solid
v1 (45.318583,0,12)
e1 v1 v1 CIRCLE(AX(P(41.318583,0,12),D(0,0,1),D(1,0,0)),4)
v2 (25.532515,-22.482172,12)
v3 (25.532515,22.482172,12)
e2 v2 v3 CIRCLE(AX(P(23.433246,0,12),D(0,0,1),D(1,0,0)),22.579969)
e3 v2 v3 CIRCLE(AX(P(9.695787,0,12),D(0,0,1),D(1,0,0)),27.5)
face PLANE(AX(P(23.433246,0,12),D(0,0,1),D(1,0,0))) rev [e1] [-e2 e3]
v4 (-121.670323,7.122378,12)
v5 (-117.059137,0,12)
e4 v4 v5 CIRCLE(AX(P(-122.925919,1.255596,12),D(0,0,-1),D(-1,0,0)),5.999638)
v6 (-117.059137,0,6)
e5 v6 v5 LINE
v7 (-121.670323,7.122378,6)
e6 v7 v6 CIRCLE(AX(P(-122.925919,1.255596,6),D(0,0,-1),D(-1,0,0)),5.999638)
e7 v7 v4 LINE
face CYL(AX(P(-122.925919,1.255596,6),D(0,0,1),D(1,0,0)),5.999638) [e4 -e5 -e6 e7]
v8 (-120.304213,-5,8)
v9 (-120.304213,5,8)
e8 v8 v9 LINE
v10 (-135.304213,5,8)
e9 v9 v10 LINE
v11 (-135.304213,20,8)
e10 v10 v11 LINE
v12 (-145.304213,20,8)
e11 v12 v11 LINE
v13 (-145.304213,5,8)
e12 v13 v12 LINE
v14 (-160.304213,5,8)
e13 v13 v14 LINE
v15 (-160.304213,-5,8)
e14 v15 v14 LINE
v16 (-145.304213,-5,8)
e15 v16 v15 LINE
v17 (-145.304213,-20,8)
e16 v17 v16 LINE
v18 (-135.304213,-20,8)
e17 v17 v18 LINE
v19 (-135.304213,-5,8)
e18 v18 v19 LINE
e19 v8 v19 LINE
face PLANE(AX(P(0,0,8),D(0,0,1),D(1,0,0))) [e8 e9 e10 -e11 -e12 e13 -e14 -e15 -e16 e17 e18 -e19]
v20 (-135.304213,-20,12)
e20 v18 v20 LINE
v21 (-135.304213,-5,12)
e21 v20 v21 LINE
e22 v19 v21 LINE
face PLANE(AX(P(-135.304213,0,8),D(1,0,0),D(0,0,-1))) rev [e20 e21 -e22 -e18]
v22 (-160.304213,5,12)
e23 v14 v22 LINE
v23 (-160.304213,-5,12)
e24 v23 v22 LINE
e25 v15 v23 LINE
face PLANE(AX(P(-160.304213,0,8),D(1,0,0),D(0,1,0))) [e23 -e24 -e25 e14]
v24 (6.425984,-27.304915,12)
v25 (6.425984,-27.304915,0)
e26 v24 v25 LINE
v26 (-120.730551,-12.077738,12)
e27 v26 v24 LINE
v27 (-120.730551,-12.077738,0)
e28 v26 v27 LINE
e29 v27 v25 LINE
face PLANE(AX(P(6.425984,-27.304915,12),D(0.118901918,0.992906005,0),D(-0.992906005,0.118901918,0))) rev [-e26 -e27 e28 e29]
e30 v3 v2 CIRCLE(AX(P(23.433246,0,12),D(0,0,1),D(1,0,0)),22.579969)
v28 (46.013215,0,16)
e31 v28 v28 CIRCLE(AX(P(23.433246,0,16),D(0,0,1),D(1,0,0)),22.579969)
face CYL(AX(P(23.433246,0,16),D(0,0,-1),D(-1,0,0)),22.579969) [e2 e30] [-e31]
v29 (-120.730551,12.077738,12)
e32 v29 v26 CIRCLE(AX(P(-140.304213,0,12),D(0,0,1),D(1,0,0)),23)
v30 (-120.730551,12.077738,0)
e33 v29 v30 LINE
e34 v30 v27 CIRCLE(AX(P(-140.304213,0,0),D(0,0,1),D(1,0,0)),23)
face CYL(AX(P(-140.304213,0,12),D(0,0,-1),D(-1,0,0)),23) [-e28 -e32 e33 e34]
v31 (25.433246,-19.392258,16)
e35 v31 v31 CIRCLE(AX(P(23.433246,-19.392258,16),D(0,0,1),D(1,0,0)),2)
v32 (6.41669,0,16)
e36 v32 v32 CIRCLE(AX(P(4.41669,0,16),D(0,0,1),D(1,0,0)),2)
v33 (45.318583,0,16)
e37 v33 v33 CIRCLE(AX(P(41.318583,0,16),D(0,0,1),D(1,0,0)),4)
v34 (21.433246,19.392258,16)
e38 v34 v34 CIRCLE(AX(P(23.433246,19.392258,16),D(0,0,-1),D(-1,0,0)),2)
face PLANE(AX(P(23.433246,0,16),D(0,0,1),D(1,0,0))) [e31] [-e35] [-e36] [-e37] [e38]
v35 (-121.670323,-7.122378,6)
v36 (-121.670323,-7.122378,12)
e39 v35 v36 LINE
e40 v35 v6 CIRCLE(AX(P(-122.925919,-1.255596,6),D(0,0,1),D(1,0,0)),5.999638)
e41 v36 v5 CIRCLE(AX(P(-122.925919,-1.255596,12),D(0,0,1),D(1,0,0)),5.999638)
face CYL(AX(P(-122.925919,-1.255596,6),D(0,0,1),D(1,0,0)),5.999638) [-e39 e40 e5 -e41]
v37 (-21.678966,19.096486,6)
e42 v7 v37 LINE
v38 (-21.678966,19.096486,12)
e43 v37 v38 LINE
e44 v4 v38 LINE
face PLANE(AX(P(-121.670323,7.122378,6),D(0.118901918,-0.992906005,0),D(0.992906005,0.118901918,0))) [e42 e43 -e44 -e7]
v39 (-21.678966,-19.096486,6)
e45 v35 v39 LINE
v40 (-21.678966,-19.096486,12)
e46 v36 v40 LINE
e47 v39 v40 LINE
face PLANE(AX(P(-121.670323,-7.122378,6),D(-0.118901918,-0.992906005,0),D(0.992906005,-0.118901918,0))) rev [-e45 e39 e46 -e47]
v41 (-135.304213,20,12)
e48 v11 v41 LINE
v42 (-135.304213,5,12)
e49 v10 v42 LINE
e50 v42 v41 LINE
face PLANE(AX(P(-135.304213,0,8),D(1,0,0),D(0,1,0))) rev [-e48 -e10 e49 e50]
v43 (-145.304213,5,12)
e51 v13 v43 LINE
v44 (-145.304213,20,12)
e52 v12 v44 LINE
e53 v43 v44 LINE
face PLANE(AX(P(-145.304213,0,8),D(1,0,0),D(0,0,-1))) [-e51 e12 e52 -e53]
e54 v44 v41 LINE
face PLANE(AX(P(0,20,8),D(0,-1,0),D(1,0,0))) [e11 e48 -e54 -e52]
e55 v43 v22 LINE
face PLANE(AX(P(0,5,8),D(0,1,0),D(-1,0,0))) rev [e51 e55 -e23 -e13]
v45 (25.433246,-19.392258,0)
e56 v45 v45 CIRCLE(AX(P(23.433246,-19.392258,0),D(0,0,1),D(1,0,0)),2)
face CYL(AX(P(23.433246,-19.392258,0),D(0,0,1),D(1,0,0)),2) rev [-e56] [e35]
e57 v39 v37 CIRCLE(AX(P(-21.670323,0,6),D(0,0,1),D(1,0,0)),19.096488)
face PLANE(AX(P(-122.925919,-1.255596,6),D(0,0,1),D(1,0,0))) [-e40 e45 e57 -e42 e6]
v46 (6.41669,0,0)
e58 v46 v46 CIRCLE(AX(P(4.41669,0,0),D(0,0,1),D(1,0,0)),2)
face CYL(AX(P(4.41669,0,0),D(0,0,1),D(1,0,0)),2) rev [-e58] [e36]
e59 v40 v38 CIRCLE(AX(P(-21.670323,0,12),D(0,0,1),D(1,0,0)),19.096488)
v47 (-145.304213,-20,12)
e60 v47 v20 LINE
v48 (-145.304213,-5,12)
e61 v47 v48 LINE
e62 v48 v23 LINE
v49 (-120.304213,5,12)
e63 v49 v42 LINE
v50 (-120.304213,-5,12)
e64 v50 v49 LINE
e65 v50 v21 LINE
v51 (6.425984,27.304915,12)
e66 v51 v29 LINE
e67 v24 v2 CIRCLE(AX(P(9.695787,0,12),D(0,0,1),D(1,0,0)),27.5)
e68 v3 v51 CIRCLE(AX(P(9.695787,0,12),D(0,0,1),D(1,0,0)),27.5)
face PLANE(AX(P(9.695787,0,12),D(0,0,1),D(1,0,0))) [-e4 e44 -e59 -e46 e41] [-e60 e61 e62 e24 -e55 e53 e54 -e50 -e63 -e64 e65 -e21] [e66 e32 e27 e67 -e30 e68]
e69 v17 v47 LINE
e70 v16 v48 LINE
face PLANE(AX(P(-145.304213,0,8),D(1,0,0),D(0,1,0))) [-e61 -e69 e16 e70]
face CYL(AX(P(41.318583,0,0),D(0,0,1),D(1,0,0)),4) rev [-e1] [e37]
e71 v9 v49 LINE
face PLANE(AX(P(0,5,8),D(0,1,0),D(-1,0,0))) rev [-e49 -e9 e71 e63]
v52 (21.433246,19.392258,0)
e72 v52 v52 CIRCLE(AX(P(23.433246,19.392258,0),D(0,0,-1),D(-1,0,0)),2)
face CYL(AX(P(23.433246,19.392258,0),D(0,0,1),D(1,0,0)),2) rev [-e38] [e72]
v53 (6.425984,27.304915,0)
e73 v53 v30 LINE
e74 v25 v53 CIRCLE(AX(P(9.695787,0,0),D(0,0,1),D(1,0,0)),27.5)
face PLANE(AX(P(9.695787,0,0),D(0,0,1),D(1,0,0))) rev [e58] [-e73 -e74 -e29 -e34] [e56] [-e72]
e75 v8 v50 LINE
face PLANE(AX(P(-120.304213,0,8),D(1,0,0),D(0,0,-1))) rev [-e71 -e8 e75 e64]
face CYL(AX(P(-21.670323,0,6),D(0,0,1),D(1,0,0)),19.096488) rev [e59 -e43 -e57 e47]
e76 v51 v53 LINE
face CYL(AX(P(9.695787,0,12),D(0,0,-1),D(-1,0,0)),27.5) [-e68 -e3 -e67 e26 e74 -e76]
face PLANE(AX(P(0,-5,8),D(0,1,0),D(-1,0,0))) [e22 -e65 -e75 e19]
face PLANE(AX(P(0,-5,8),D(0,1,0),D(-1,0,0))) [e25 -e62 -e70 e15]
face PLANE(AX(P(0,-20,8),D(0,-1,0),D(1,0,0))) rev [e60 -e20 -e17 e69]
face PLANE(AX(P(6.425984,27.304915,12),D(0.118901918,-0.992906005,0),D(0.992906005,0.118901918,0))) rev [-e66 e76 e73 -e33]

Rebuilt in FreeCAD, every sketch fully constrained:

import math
import FreeCAD as App
import Part
import Sketcher

V = App.Vector

doc = App.newDocument("Part")
body = doc.addObject("PartDesign::Body", "Body")

# Sketch on XY plane
sketch1 = doc.addObject("Sketcher::SketchObject", "Sketch")
body.addObject(sketch1)
sketch1.AttachmentSupport = (doc.XY_Plane, [""])
sketch1.MapMode = "FlatFace"
sketch1.addGeometry([
    Part.LineSegment(V(6, 27, 0), V(-121, 12, 0)),
    Part.ArcOfCircle(Part.Circle(V(-140, 0, 0), V(0, 0, 1), 23), math.radians(32), math.radians(328)),
    Part.LineSegment(V(-121, -12, 0), V(6, -27, 0)),
    Part.ArcOfCircle(Part.Circle(V(10, 0, 0), V(0, 0, 1), 28), math.radians(-97), math.radians(97)),
], False)
sketch1.addConstraint([
    Sketcher.Constraint("Coincident", 0, 2, 1, 1),
    Sketcher.Constraint("Coincident", 1, 2, 2, 1),
    Sketcher.Constraint("Tangent", 2, 2, 3, 1),
    Sketcher.Constraint("Tangent", 3, 2, 0, 1),
    Sketcher.Constraint("Symmetric", 0, 2, 1, 2, -1),
    Sketcher.Constraint("PointOnObject", 3, 3, -1),
    Sketcher.Constraint("Radius", 1, 23.0),
    Sketcher.Constraint("Radius", 3, 27.5),
    Sketcher.Constraint("DistanceX", 1, 3, 3, 3, 150.0),
    Sketcher.Constraint("DistanceX", 0, 2, -1, 1, 120.730551),
    Sketcher.Constraint("DistanceY", 2, 2, 3, 2, 54.60983),
])
pad1 = doc.addObject("PartDesign::Pad", "Pad")
body.addObject(pad1)
pad1.Profile = sketch1
pad1.Length = 12

# Sketch on XY plane
sketch2 = doc.addObject("Sketcher::SketchObject", "Sketch001")
body.addObject(sketch2)
sketch2.AttachmentSupport = (doc.XY_Plane, [""])
sketch2.MapMode = "FlatFace"
sketch2.AttachmentOffset = App.Placement(V(0, 0, 12), App.Rotation())
sketch2.addGeometry([
    Part.LineSegment(V(-22, 19, 0), V(-122, 7, 0)),  # 0
    Part.ArcOfCircle(Part.Circle(V(-123, 1, 0), V(0, 0, 1), 6), math.radians(-12), math.radians(78)),  # 1
    Part.ArcOfCircle(Part.Circle(V(-123, -1, 0), V(0, 0, 1), 6), math.radians(-78), math.radians(12)),  # 2
    Part.LineSegment(V(-122, -7, 0), V(-22, -19, 0)),  # 3
    Part.ArcOfCircle(Part.Circle(V(-22, 0, 0), V(0, 0, 1), 19), math.radians(-90), math.radians(90)),  # 4
], False)
sketch2.addConstraint([
    Sketcher.Constraint("Coincident", 0, 2, 1, 2),
    Sketcher.Constraint("Coincident", 1, 1, 2, 2),
    Sketcher.Constraint("Coincident", 2, 1, 3, 1),
    Sketcher.Constraint("Coincident", 3, 2, 4, 1),
    Sketcher.Constraint("Coincident", 4, 2, 0, 1),
    Sketcher.Constraint("Equal", 1, 2),
    Sketcher.Constraint("Symmetric", 1, 3, 2, 3, -1),
    Sketcher.Constraint("Symmetric", 3, 2, 4, 2, -1),
    Sketcher.Constraint("Vertical", 0, 2, 2, 1),
    Sketcher.Constraint("DistanceX", 0, 2, 4, 3, 100.0),
    Sketcher.Constraint("Radius", 4, 19.096488),
    Sketcher.Constraint("Radius", 1, 5.999638),
    Sketcher.Constraint("DistanceX", 1, 3, -1, 1, 122.925919),
    Sketcher.Constraint("DistanceY", 1, 3, 0, 2, 5.866782),
    Sketcher.Constraint("DistanceX", 2, 3, 1, 1, 5.866782),
    Sketcher.Constraint("DistanceX", 1, 1, 3, 2, 95.380171),
])
pocket1 = doc.addObject("PartDesign::Pocket", "Pocket")
body.addObject(pocket1)
pocket1.Profile = sketch2
pocket1.Length = 6

# Sketch on XY plane
sketch3 = doc.addObject("Sketcher::SketchObject", "Sketch002")
body.addObject(sketch3)
sketch3.AttachmentSupport = (doc.XY_Plane, [""])
sketch3.MapMode = "FlatFace"
sketch3.AttachmentOffset = App.Placement(V(0, 0, 12), App.Rotation())
sketch3.addGeometry(Part.Circle(V(23, 0, 0), V(0, 0, 1), 23), False)
sketch3.addConstraint([
    Sketcher.Constraint("PointOnObject", 0, 3, -1),
    Sketcher.Constraint("Diameter", 0, 45.159937),
    Sketcher.Constraint("DistanceX", -1, 1, 0, 3, 23.433246),
])
pad2 = doc.addObject("PartDesign::Pad", "Pad001")
body.addObject(pad2)
pad2.Profile = sketch3
pad2.Length = 4

# Sketch on XY plane
sketch4 = doc.addObject("Sketcher::SketchObject", "Sketch003")
body.addObject(sketch4)
sketch4.AttachmentSupport = (doc.XY_Plane, [""])
sketch4.MapMode = "FlatFace"
sketch4.AttachmentOffset = App.Placement(V(0, 0, 16), App.Rotation())
sketch4.addGeometry(Part.Circle(V(4.4, 0, 0), V(0, 0, 1), 2), False)
sketch4.addConstraint([
    Sketcher.Constraint("PointOnObject", 0, 3, -1),
    Sketcher.Constraint("Diameter", 0, 4.0),
    Sketcher.Constraint("DistanceX", -1, 1, 0, 3, 4.41669),
])
pocket2 = doc.addObject("PartDesign::Pocket", "Pocket001")
body.addObject(pocket2)
pocket2.Profile = sketch4
pocket2.Length = 16

# Sketch on XY plane
sketch5 = doc.addObject("Sketcher::SketchObject", "Sketch004")
body.addObject(sketch5)
sketch5.AttachmentSupport = (doc.XY_Plane, [""])
sketch5.MapMode = "FlatFace"
sketch5.AttachmentOffset = App.Placement(V(0, 0, 16), App.Rotation())
sketch5.addGeometry([
    Part.Circle(V(23.4, -19.4, 0), V(0, 0, 1), 2),
    Part.Circle(V(42.4, 0, 0), V(0, 0, 1), 2),
    Part.Circle(V(23.4, 19.4, 0), V(0, 0, 1), 2),
], False)
sketch5.addConstraint([
    Sketcher.Constraint("Equal", 0, 1),
    Sketcher.Constraint("Equal", 1, 2),
    Sketcher.Constraint("Symmetric", 0, 3, 2, 3, -1),
    Sketcher.Constraint("PointOnObject", 1, 3, -1),
    Sketcher.Constraint("Diameter", 0, 4.0),
    Sketcher.Constraint("DistanceX", -1, 1, 0, 3, 23.433246),
    Sketcher.Constraint("DistanceY", 0, 3, -1, 1, 19.392258),
    Sketcher.Constraint("DistanceX", -1, 1, 1, 3, 42.449803),
])
pocket3 = doc.addObject("PartDesign::Pocket", "Pocket002")
body.addObject(pocket3)
pocket3.Profile = sketch5
pocket3.Length = 16

# Sketch on XY plane
sketch6 = doc.addObject("Sketcher::SketchObject", "Sketch005")
body.addObject(sketch6)
sketch6.AttachmentSupport = (doc.XY_Plane, [""])
sketch6.MapMode = "FlatFace"
sketch6.AttachmentOffset = App.Placement(V(0, 0, 16), App.Rotation())
sketch6.addGeometry(Part.Circle(V(41.3, 0, 0), V(0, 0, 1), 4), False)
sketch6.addConstraint([
    Sketcher.Constraint("PointOnObject", 0, 3, -1),
    Sketcher.Constraint("Diameter", 0, 8.0),
    Sketcher.Constraint("DistanceX", -1, 1, 0, 3, 41.318583),
])
pocket4 = doc.addObject("PartDesign::Pocket", "Pocket003")
body.addObject(pocket4)
pocket4.Profile = sketch6
pocket4.Type = "ThroughAll"
pocket4.Midplane = True

# Sketch on XY plane
sketch7 = doc.addObject("Sketcher::SketchObject", "Sketch006")
body.addObject(sketch7)
sketch7.AttachmentSupport = (doc.XY_Plane, [""])
sketch7.MapMode = "FlatFace"
sketch7.AttachmentOffset = App.Placement(V(0, 0, 12), App.Rotation())
sketch7.addGeometry([
    Part.LineSegment(V(-120, 5, 0), V(-135, 5, 0)),  # 0
    Part.LineSegment(V(-135, 5, 0), V(-135, 20, 0)),  # 1
    Part.LineSegment(V(-135, 20, 0), V(-145, 20, 0)),  # 2
    Part.LineSegment(V(-145, 20, 0), V(-145, 5, 0)),  # 3
    Part.LineSegment(V(-145, 5, 0), V(-160, 5, 0)),  # 4
    Part.LineSegment(V(-160, 5, 0), V(-160, -5, 0)),  # 5
    Part.LineSegment(V(-160, -5, 0), V(-145, -5, 0)),  # 6
    Part.LineSegment(V(-145, -5, 0), V(-145, -20, 0)),  # 7
    Part.LineSegment(V(-145, -20, 0), V(-135, -20, 0)),  # 8
    Part.LineSegment(V(-135, -20, 0), V(-135, -5, 0)),  # 9
    Part.LineSegment(V(-135, -5, 0), V(-120, -5, 0)),  # 10
    Part.LineSegment(V(-120, -5, 0), V(-120, 5, 0)),  # 11
], False)
sketch7.addConstraint([
    Sketcher.Constraint("Coincident", 0, 2, 1, 1),
    Sketcher.Constraint("Coincident", 1, 2, 2, 1),
    Sketcher.Constraint("Coincident", 2, 2, 3, 1),
    Sketcher.Constraint("Coincident", 3, 2, 4, 1),
    Sketcher.Constraint("Coincident", 4, 2, 5, 1),
    Sketcher.Constraint("Coincident", 5, 2, 6, 1),
    Sketcher.Constraint("Coincident", 6, 2, 7, 1),
    Sketcher.Constraint("Coincident", 7, 2, 8, 1),
    Sketcher.Constraint("Coincident", 8, 2, 9, 1),
    Sketcher.Constraint("Coincident", 9, 2, 10, 1),
    Sketcher.Constraint("Coincident", 10, 2, 11, 1),
    Sketcher.Constraint("Coincident", 11, 2, 0, 1),
    Sketcher.Constraint("Horizontal", 0),
    Sketcher.Constraint("Vertical", 1),
    Sketcher.Constraint("Horizontal", 2),
    Sketcher.Constraint("Vertical", 3),
    Sketcher.Constraint("Horizontal", 4),
    Sketcher.Constraint("Vertical", 5),
    Sketcher.Constraint("Horizontal", 6),
    Sketcher.Constraint("Vertical", 7),
    Sketcher.Constraint("Horizontal", 8),
    Sketcher.Constraint("Vertical", 9),
    Sketcher.Constraint("Horizontal", 10),
    Sketcher.Constraint("Vertical", 11),
    Sketcher.Constraint("Symmetric", 3, 2, 6, 2, -1),
    Sketcher.Constraint("Symmetric", 1, 2, 8, 2, -1),
    Sketcher.Constraint("Horizontal", 0, 2, 3, 2),
    Sketcher.Constraint("Horizontal", 6, 2, 9, 2),
    Sketcher.Constraint("Equal", 0, 4),
    Sketcher.Constraint("Equal", 10, 1),
    Sketcher.Constraint("Equal", 8, 5),
    Sketcher.Constraint("DistanceX", 0, 2, 0, 1, 15.0),
    Sketcher.Constraint("DistanceX", 2, 2, 2, 1, 10.0),
    Sketcher.Constraint("DistanceX", 0, 2, -1, 1, 135.304213),
])
pocket5 = doc.addObject("PartDesign::Pocket", "Pocket004")
body.addObject(pocket5)
pocket5.Profile = sketch7
pocket5.Length = 4

doc.recompute()
